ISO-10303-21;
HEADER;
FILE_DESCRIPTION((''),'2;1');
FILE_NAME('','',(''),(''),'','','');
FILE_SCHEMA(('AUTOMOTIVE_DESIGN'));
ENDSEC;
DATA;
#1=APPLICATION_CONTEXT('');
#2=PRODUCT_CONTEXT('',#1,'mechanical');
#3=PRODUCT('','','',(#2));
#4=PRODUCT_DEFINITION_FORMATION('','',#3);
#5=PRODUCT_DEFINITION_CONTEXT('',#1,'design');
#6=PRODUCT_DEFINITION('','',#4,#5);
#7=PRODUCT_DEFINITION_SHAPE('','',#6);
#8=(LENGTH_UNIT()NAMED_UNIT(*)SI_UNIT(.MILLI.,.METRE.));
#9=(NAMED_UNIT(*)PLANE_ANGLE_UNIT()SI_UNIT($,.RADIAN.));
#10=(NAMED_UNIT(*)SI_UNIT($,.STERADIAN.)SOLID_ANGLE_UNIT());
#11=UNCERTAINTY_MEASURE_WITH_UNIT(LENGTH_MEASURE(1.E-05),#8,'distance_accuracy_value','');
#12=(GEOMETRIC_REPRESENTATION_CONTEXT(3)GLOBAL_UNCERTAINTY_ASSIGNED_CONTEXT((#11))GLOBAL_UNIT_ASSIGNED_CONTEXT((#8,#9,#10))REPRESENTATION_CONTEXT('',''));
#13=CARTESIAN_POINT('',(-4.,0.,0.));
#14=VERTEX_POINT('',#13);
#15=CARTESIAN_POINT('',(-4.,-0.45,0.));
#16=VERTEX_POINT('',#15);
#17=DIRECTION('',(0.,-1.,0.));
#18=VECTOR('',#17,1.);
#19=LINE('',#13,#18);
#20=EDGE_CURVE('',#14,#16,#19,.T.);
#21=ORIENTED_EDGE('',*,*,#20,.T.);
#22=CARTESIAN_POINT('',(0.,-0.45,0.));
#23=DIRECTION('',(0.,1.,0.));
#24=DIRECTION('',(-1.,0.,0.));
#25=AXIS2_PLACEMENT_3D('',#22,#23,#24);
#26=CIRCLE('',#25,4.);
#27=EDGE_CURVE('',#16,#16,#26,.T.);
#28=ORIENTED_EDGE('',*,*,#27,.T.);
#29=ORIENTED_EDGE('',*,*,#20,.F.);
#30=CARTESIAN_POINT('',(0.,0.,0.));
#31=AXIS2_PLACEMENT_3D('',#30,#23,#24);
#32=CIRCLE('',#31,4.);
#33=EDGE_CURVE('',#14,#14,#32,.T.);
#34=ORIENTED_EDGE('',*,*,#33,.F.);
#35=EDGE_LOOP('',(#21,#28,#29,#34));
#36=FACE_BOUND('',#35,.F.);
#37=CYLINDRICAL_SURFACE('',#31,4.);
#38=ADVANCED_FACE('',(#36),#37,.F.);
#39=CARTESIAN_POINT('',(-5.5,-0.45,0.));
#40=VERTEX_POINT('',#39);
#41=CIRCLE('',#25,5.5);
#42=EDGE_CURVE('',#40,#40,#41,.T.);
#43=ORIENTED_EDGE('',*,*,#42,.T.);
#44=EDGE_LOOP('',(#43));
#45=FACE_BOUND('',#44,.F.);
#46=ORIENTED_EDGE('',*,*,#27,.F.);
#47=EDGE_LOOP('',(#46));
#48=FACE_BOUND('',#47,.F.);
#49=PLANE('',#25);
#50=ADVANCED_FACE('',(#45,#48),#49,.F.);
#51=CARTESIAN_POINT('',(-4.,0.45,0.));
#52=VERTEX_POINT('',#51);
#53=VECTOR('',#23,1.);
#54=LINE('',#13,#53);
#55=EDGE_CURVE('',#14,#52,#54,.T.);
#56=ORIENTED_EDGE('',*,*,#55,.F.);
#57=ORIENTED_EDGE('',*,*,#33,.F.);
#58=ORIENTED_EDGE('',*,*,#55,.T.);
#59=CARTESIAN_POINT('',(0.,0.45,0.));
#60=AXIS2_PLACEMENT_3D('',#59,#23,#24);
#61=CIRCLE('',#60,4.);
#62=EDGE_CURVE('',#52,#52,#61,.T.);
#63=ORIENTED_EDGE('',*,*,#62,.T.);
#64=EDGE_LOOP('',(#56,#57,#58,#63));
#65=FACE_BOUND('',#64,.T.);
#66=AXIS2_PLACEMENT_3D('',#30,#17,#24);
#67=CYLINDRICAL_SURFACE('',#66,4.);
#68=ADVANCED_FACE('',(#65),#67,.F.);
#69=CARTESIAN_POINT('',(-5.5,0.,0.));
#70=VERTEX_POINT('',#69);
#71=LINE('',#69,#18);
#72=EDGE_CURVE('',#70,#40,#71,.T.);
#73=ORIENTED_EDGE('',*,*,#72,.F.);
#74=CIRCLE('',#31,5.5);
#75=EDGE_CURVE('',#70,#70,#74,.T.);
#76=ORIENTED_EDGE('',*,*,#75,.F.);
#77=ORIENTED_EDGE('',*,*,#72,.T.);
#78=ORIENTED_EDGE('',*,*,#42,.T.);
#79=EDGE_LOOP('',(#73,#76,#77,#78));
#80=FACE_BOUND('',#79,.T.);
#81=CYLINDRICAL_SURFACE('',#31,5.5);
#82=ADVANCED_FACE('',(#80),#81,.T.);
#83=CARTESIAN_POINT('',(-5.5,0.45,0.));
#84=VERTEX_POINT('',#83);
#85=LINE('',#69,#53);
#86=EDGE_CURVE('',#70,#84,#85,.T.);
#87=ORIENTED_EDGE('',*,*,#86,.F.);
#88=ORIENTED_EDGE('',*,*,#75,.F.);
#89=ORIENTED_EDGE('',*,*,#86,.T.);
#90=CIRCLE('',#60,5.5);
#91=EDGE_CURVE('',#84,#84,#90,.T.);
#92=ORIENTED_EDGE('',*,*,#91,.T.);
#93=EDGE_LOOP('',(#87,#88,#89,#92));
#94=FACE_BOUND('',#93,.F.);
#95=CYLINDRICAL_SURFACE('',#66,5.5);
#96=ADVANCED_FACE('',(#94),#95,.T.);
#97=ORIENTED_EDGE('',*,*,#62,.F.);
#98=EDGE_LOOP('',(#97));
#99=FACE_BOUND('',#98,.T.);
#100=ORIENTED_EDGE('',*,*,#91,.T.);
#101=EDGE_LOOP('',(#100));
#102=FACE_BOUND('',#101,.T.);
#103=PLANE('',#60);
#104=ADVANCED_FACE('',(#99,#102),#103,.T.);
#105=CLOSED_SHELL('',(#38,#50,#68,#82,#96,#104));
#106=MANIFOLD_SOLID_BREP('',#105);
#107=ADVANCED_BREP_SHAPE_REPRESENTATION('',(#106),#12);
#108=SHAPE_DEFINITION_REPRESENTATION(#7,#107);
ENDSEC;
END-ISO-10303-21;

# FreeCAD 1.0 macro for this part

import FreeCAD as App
import Part
import Sketcher
Q = App.Units.Quantity

doc = App.newDocument("Part")
body = doc.addObject("PartDesign::Body", "Body")

# Sketch on XZ plane
sketch1 = body.newObject("Sketcher::SketchObject", "Sketch")
sketch1.AttachmentSupport = (doc.getObject("XZ_Plane"), [""])
sketch1.MapMode = "FlatFace"
sketch1.addGeometry([
    Part.Circle(App.Vector(0, 0, 0), App.Vector(0, 0, 1), 5.5),
    Part.Circle(App.Vector(0, 0, 0), App.Vector(0, 0, 1), 4),
], False)
sketch1.addConstraint([
    Sketcher.Constraint("Coincident", 0, 3, -1, 1),
    Sketcher.Constraint("Coincident", 1, 3, -1, 1),
    Sketcher.Constraint("Diameter", 0, Q("11 mm")),
    Sketcher.Constraint("Diameter", 1, Q("8 mm")),
])
pad1 = body.newObject("PartDesign::Pad", "Pad")
pad1.Profile = sketch1
pad1.Length = 0.9
pad1.Midplane = True

doc.recompute()
